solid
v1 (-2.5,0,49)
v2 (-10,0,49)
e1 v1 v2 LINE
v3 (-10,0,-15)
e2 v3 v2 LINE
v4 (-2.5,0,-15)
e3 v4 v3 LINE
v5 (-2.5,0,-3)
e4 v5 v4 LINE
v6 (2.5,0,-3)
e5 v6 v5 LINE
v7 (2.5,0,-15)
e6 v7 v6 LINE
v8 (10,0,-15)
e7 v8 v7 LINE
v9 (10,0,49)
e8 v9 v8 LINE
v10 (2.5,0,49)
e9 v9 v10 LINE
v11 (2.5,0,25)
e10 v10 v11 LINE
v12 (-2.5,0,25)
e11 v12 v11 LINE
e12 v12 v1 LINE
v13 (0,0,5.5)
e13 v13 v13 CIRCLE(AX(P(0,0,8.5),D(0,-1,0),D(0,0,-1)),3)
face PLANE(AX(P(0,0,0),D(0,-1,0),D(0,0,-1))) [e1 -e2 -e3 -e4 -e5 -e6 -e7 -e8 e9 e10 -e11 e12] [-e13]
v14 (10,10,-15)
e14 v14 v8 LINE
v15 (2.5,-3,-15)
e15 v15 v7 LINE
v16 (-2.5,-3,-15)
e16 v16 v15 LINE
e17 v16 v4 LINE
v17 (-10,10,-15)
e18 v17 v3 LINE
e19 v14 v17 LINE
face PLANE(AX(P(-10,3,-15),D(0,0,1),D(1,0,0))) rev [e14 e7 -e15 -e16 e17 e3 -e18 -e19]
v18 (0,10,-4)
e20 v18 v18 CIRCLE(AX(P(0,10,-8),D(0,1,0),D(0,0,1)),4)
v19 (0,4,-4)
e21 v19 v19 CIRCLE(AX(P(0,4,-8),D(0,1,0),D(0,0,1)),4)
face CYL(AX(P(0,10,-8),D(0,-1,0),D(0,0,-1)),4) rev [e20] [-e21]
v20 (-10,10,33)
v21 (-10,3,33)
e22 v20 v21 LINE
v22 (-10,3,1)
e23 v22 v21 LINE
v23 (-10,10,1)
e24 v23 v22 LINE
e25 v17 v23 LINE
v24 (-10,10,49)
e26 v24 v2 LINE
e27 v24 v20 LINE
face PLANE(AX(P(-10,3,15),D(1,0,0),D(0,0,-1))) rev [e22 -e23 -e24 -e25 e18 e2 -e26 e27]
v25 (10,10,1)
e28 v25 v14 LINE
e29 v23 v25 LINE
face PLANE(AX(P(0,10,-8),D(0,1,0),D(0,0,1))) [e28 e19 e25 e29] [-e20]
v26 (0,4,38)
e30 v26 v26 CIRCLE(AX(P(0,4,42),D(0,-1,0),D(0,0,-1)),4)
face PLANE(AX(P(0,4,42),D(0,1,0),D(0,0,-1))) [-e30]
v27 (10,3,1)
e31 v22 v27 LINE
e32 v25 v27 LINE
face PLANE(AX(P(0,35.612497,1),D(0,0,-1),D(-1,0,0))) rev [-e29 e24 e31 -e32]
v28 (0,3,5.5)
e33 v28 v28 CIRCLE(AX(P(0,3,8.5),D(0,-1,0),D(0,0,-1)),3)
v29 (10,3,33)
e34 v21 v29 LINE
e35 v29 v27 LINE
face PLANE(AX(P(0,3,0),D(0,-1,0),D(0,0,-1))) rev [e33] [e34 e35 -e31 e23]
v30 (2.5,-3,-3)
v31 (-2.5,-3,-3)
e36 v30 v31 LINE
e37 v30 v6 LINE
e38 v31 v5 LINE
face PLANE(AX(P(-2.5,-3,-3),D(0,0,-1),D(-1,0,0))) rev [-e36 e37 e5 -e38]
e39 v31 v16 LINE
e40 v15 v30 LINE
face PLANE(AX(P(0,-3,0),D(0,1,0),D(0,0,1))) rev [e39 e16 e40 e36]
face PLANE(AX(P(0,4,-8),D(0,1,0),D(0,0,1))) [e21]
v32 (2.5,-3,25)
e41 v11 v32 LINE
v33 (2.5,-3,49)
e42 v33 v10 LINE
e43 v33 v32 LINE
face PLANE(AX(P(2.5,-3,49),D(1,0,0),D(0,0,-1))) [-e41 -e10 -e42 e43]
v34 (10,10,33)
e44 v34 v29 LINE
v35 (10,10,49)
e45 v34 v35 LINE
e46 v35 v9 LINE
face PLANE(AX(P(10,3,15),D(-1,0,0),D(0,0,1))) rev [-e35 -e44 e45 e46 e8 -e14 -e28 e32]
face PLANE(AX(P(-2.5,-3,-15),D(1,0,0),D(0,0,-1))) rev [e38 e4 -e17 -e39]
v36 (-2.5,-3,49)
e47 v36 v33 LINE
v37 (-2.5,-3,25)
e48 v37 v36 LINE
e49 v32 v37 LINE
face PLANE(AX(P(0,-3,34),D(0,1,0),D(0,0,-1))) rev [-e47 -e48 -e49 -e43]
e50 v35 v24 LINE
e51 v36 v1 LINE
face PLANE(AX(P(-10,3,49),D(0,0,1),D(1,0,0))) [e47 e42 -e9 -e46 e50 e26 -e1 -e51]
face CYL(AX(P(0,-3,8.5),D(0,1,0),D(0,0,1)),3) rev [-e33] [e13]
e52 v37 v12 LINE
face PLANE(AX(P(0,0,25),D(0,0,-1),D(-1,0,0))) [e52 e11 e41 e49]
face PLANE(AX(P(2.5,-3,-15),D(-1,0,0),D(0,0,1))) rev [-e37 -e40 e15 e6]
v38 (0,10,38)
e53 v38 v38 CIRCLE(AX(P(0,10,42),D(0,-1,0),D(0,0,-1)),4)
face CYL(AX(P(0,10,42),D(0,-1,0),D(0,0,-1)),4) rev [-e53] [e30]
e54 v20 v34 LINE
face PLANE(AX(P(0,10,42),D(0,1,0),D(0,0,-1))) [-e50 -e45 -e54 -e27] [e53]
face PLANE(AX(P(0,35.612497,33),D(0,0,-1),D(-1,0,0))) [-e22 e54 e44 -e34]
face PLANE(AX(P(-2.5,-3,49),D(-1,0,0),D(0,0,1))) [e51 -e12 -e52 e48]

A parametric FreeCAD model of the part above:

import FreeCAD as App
import Part
import Sketcher

V = App.Vector
Q = App.Units.Quantity

doc = App.newDocument("Part")
body = doc.addObject("PartDesign::Body", "Body")

# Sketch on XZ plane
sketch1 = body.newObject("Sketcher::SketchObject", "Sketch")
sketch1.AttachmentSupport = (doc.getObject("XZ_Plane"), [""])
sketch1.MapMode = "FlatFace"
sketch1.addGeometry([
    Part.LineSegment(V(-10, -15, 0), V(-10, 15, 0)),
    Part.LineSegment(V(-10, 15, 0), V(10, 15, 0)),
    Part.LineSegment(V(10, 15, 0), V(10, -15, 0)),
    Part.LineSegment(V(10, -15, 0), V(-10, -15, 0)),
], False)
sketch1.addConstraint([
    Sketcher.Constraint("Coincident", 0, 2, 1, 1),
    Sketcher.Constraint("Coincident", 1, 2, 2, 1),
    Sketcher.Constraint("Coincident", 2, 2, 3, 1),
    Sketcher.Constraint("Coincident", 3, 2, 0, 1),
    Sketcher.Constraint("Vertical", 0),
    Sketcher.Constraint("Horizontal", 1),
    Sketcher.Constraint("Vertical", 2),
    Sketcher.Constraint("Horizontal", 3),
    Sketcher.Constraint("Symmetric", 0, 2, 2, 2, -1, 1),
    Sketcher.Constraint("DistanceX", 1, 1, 1, 2, Q("20 mm")),
    Sketcher.Constraint("DistanceY", 0, 1, 0, 2, Q("30 mm")),
])
pad1 = body.newObject("PartDesign::Pad", "Pad")
pad1.Profile = sketch1
pad1.Length = 3
pad1.Reversed = True

# Sketch on XZ plane
sketch2 = body.newObject("Sketcher::SketchObject", "Sketch001")
sketch2.AttachmentSupport = (doc.getObject("XZ_Plane"), [""])
sketch2.MapMode = "FlatFace"
sketch2.addGeometry([
    Part.LineSegment(V(-2, -3, 0), V(-2, -15, 0)),
    Part.LineSegment(V(-2, -15, 0), V(2, -15, 0)),
    Part.LineSegment(V(2, -15, 0), V(2, -3, 0)),
    Part.LineSegment(V(2, -3, 0), V(-2, -3, 0)),
], False)
sketch2.addConstraint([
    Sketcher.Constraint("Coincident", 0, 2, 1, 1),
    Sketcher.Constraint("Coincident", 1, 2, 2, 1),
    Sketcher.Constraint("Coincident", 2, 2, 3, 1),
    Sketcher.Constraint("Coincident", 3, 2, 0, 1),
    Sketcher.Constraint("Vertical", 0),
    Sketcher.Constraint("Horizontal", 1),
    Sketcher.Constraint("Vertical", 2),
    Sketcher.Constraint("Horizontal", 3),
    Sketcher.Constraint("DistanceX", 1, 1, 1, 2, Q("5 mm")),
    Sketcher.Constraint("DistanceY", 0, 2, 0, 1, Q("12 mm")),
    Sketcher.Constraint("DistanceY", 0, 2, -1, 1, Q("15 mm")),
    Sketcher.Constraint("DistanceX", 0, 2, -1, 1, Q("2.5 mm")),
])
pad2 = body.newObject("PartDesign::Pad", "Pad001")
pad2.Profile = sketch2
pad2.Length = 3

# Sketch on XZ plane
sketch3 = body.newObject("Sketcher::SketchObject", "Sketch002")
sketch3.AttachmentSupport = (doc.getObject("XZ_Plane"), [""])
sketch3.MapMode = "FlatFace"
sketch3.AttachmentOffset = App.Placement(V(0, 0, -3), App.Rotation())
sketch3.addGeometry([
    Part.Circle(V(0, -8, 0), V(0, 0, 1), 7),
    Part.Circle(V(0, -8, 0), V(0, 0, 1), 4),
], False)
sketch3.addConstraint([
    Sketcher.Constraint("Coincident", 1, 3, 0, 3),
    Sketcher.Constraint("PointOnObject", 0, 3, -2),
    Sketcher.Constraint("Diameter", 0, Q("14 mm")),
    Sketcher.Constraint("Diameter", 1, Q("8 mm")),
    Sketcher.Constraint("DistanceY", 0, 3, -1, 1, Q("8 mm")),
])
pad3 = body.newObject("PartDesign::Pad", "Pad002")
pad3.Profile = sketch3
pad3.Length = 7
pad3.Reversed = True

# Sketch on XZ plane
sketch4 = body.newObject("Sketcher::SketchObject", "Sketch003")
sketch4.AttachmentSupport = (doc.getObject("XZ_Plane"), [""])
sketch4.MapMode = "FlatFace"
sketch4.AttachmentOffset = App.Placement(V(0, 0, -3), App.Rotation())
sketch4.addGeometry(Part.Circle(V(0, -8, 0), V(0, 0, 1), 4), False)
sketch4.addConstraint([
    Sketcher.Constraint("PointOnObject", 0, 3, -2),
    Sketcher.Constraint("Diameter", 0, Q("8 mm")),
    Sketcher.Constraint("DistanceY", 0, 3, -1, 1, Q("8 mm")),
])
pad4 = body.newObject("PartDesign::Pad", "Pad003")
pad4.Profile = sketch4
pad4.Length = 1
pad4.Reversed = True

# Sketch on XZ plane
sketch5 = body.newObject("Sketcher::SketchObject", "Sketch004")
sketch5.AttachmentSupport = (doc.getObject("XZ_Plane"), [""])
sketch5.MapMode = "FlatFace"
sketch5.AttachmentOffset = App.Placement(V(0, 0, -3), App.Rotation())
sketch5.addGeometry(Part.Circle(V(0, 8.5, 0), V(0, 0, 1), 3), False)
sketch5.addConstraint([
    Sketcher.Constraint("PointOnObject", 0, 3, -2),
    Sketcher.Constraint("Diameter", 0, Q("6 mm")),
    Sketcher.Constraint("DistanceY", -1, 1, 0, 3, Q("8.5 mm")),
])
pocket1 = body.newObject("PartDesign::Pocket", "Pocket")
pocket1.Profile = sketch5
pocket1.Type = "ThroughAll"
pocket1.Midplane = True

# Sketch on XZ plane
sketch6 = body.newObject("Sketcher::SketchObject", "Sketch005")
sketch6.AttachmentSupport = (doc.getObject("XZ_Plane"), [""])
sketch6.MapMode = "FlatFace"
sketch6.AttachmentOffset = App.Placement(V(0, 0, -3), App.Rotation())
sketch6.addGeometry([
    Part.LineSegment(V(10, -15, 0), V(-10, -15, 0)),  # 0
    Part.LineSegment(V(-10, -15, 0), V(-10, 1, 0)),  # 1
    Part.LineSegment(V(-10, 1, 0), V(10, 1, 0)),  # 2
    Part.LineSegment(V(10, 1, 0), V(10, -15, 0)),  # 3
    Part.Circle(V(0, -8, 0), V(0, 0, 1), 4),  # 4
], False)
sketch6.addConstraint([
    Sketcher.Constraint("Coincident", 0, 2, 1, 1),
    Sketcher.Constraint("Coincident", 1, 2, 2, 1),
    Sketcher.Constraint("Coincident", 2, 2, 3, 1),
    Sketcher.Constraint("Coincident", 3, 2, 0, 1),
    Sketcher.Constraint("Horizontal", 0),
    Sketcher.Constraint("Vertical", 1),
    Sketcher.Constraint("Horizontal", 2),
    Sketcher.Constraint("Vertical", 3),
    Sketcher.Constraint("PointOnObject", 4, 3, -2),
    Sketcher.Constraint("Diameter", 4, Q("8 mm")),
    Sketcher.Constraint("DistanceX", 0, 2, 0, 1, Q("20 mm")),
    Sketcher.Constraint("DistanceY", 1, 1, 1, 2, Q("16 mm")),
    Sketcher.Constraint("DistanceY", 4, 3, -1, 1, Q("8 mm")),
    Sketcher.Constraint("DistanceX", 0, 2, -1, 1, Q("10 mm")),
    Sketcher.Constraint("DistanceY", 0, 2, -1, 1, Q("15 mm")),
])
pad5 = body.newObject("PartDesign::Pad", "Pad004")
pad5.Profile = sketch6
pad5.Length = 7
pad5.Reversed = True

# Sketch on XY plane
sketch7 = body.newObject("Sketcher::SketchObject", "Sketch006")
sketch7.AttachmentSupport = (doc.getObject("XY_Plane"), [""])
sketch7.MapMode = "FlatFace"
sketch7.AttachmentOffset = App.Placement(V(0, 0, 15), App.Rotation())
sketch7.addGeometry([
    Part.LineSegment(V(-10, 3, 0), V(-10, 0, 0)),
    Part.LineSegment(V(-10, 0, 0), V(10, 0, 0)),
    Part.LineSegment(V(10, 0, 0), V(10, 3, 0)),
    Part.LineSegment(V(10, 3, 0), V(-10, 3, 0)),
], False)
sketch7.addConstraint([
    Sketcher.Constraint("Coincident", 0, 2, 1, 1),
    Sketcher.Constraint("Coincident", 1, 2, 2, 1),
    Sketcher.Constraint("Coincident", 2, 2, 3, 1),
    Sketcher.Constraint("Coincident", 3, 2, 0, 1),
    Sketcher.Constraint("Vertical", 0),
    Sketcher.Constraint("Horizontal", 1),
    Sketcher.Constraint("Vertical", 2),
    Sketcher.Constraint("Horizontal", 3),
    Sketcher.Constraint("Symmetric", 0, 2, 1, 2, -1, 1),
    Sketcher.Constraint("DistanceX", 1, 1, 1, 2, Q("20 mm")),
    Sketcher.Constraint("DistanceY", 0, 2, 0, 1, Q("3 mm")),
])
pad6 = body.newObject("PartDesign::Pad", "Pad005")
pad6.Profile = sketch7
pad6.Length = 19
doc.recompute()

datumplane = body.newObject("PartDesign::Plane", "DatumPlane")
datumplane.AttachmentSupport = (doc.getObject("XY_Plane"), [""])
datumplane.MapMode = "FlatFace"
datumplane.AttachmentOffset = App.Placement(V(0, 0, 17), App.Rotation())
mirrored = body.newObject("PartDesign::Mirrored", "Mirrored")
mirrored.Originals = [pad1, pad2, pad3, pad4, pad5]
mirrored.MirrorPlane = (datumplane, [""])
body.Tip = mirrored

# Sketch on XY plane
sketch8 = body.newObject("Sketcher::SketchObject", "Sketch007")
sketch8.AttachmentSupport = (doc.getObject("XY_Plane"), [""])
sketch8.MapMode = "FlatFace"
sketch8.AttachmentOffset = App.Placement(V(0, 0, 37), App.Rotation())
sketch8.addGeometry([
    Part.LineSegment(V(2.5, 0, 0), V(2.5, -3, 0)),
    Part.LineSegment(V(2.5, -3, 0), V(-2.5, -3, 0)),
    Part.LineSegment(V(-2.5, -3, 0), V(-2.5, 0, 0)),
    Part.LineSegment(V(-2.5, 0, 0), V(2.5, 0, 0)),
], False)
sketch8.addConstraint([
    Sketcher.Constraint("Coincident", 0, 2, 1, 1),
    Sketcher.Constraint("Coincident", 1, 2, 2, 1),
    Sketcher.Constraint("Coincident", 2, 2, 3, 1),
    Sketcher.Constraint("Coincident", 3, 2, 0, 1),
    Sketcher.Constraint("Vertical", 0),
    Sketcher.Constraint("Horizontal", 1),
    Sketcher.Constraint("Vertical", 2),
    Sketcher.Constraint("Horizontal", 3),
    Sketcher.Constraint("Symmetric", 2, 2, 3, 2, -1, 1),
    Sketcher.Constraint("DistanceX", 1, 2, 1, 1, Q("5 mm")),
    Sketcher.Constraint("DistanceY", 0, 2, 0, 1, Q("3 mm")),
])
pad7 = body.newObject("PartDesign::Pad", "Pad006")
pad7.Profile = sketch8
pad7.Length = 12
pad7.Reversed = True

doc.recompute()
